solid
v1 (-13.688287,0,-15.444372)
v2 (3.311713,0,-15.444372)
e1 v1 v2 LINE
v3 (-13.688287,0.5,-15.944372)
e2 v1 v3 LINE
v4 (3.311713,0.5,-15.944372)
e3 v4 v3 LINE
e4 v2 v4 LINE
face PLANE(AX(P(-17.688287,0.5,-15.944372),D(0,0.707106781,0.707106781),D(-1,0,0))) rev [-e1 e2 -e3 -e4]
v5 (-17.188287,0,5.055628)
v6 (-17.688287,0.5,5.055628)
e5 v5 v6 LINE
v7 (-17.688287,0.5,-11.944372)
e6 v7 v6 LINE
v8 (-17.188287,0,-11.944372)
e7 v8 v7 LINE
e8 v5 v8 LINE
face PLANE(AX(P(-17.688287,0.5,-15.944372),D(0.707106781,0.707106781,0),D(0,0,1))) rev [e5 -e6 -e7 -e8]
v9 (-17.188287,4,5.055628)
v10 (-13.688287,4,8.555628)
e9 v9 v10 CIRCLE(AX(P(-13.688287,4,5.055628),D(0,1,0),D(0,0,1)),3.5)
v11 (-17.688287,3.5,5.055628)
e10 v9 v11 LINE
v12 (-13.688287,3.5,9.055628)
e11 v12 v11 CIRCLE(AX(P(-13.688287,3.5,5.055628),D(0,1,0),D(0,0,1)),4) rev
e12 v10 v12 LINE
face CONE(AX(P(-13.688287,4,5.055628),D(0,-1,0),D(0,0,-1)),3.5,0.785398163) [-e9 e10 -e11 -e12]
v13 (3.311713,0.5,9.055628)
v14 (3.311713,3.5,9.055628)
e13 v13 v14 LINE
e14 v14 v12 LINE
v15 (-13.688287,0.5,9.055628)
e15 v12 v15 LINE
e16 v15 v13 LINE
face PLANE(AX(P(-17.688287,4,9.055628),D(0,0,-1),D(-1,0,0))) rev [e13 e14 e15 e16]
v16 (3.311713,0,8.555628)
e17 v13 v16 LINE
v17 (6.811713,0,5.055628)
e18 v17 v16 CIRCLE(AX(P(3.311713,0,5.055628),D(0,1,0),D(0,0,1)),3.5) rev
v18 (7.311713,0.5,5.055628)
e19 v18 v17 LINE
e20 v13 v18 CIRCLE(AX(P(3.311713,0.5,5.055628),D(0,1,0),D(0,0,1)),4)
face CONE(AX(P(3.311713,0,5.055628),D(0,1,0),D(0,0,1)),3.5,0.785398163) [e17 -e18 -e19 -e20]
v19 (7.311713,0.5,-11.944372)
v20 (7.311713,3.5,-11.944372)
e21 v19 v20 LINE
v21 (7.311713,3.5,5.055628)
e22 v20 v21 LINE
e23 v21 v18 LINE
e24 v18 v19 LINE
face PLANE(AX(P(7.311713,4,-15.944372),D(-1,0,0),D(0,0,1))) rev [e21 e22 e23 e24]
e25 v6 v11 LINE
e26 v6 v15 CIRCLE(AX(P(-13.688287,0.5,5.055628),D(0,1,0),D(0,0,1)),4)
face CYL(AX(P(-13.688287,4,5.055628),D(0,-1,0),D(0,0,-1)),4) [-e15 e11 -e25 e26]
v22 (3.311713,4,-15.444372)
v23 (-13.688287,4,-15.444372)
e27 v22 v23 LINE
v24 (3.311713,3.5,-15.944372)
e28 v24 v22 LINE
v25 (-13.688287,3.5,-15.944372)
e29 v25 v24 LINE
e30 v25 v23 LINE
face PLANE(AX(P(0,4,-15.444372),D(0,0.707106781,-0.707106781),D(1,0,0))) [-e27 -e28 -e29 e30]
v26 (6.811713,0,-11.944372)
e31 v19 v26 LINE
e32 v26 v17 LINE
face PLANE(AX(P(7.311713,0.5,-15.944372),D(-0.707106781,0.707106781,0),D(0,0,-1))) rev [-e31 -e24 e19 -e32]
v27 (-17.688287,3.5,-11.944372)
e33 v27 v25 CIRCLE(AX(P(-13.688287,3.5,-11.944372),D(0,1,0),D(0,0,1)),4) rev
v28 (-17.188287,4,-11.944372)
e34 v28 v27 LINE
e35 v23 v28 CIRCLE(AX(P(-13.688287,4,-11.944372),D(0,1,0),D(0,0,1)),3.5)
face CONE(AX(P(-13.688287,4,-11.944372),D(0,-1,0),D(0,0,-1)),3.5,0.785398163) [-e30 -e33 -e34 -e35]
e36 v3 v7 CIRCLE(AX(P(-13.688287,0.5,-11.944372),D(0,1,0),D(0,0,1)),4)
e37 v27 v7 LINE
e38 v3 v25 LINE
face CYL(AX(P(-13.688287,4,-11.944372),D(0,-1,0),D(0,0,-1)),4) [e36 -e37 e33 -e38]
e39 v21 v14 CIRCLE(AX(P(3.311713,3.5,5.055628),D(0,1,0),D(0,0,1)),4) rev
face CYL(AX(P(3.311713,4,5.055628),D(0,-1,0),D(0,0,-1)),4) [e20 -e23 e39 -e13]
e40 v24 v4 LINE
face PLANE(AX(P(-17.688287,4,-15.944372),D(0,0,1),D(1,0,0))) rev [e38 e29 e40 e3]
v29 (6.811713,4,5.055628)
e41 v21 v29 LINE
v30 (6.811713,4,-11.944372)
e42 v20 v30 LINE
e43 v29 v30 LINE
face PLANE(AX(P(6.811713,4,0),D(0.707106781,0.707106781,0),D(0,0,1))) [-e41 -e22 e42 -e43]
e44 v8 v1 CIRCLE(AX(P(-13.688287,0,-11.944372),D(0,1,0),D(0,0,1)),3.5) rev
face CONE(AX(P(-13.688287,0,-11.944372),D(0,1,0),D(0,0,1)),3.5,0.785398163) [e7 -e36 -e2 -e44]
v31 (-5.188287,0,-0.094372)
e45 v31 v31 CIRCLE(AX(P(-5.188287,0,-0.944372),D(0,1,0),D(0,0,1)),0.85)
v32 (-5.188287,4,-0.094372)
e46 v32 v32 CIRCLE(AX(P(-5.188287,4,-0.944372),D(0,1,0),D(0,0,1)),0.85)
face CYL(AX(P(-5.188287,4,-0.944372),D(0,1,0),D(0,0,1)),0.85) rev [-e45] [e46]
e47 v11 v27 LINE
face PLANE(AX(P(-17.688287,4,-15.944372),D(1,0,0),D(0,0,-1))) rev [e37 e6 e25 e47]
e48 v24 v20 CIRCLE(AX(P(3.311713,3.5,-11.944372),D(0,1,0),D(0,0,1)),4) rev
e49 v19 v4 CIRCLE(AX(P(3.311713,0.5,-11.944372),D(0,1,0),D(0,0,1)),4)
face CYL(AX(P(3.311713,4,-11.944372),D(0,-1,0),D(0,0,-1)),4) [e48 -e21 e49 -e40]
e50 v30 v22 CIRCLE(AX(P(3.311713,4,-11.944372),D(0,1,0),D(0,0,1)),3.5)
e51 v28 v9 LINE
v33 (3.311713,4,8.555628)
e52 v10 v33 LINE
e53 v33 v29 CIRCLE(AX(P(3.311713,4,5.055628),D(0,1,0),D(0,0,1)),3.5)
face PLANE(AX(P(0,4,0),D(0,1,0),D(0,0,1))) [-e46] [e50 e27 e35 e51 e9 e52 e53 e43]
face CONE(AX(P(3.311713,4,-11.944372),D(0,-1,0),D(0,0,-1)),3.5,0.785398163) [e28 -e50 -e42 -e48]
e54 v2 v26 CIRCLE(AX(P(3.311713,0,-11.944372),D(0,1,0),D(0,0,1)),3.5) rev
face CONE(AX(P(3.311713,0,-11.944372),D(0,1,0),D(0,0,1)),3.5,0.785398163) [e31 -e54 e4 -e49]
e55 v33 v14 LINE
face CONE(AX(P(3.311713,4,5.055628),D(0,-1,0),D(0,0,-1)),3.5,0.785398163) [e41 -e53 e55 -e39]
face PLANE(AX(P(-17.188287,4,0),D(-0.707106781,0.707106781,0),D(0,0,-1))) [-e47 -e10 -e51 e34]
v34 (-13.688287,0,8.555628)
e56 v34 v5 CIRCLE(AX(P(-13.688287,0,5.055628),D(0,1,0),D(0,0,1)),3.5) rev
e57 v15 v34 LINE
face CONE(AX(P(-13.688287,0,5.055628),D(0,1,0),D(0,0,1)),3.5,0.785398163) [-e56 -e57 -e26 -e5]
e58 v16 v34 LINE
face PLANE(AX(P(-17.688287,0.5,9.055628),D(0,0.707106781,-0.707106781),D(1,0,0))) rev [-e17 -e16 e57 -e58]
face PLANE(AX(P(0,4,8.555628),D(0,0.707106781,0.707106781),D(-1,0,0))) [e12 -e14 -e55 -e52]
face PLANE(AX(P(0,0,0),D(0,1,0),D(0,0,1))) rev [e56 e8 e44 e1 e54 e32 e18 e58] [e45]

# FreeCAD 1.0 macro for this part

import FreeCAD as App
import Part
import Sketcher

V = App.Vector


def edges_at(feature, points):
    """Names of the edges that pass closest to the given points."""
    edges = feature.Shape.Edges
    near = lambda p: min(range(len(edges)), key=lambda i: edges[i].distToShape(Part.Vertex(*p))[0])
    return sorted({f"Edge{near(p) + 1}" for p in points})

doc = App.newDocument("Part")
body = doc.addObject("PartDesign::Body", "Body")

# Sketch on XZ plane
sketch1 = body.newObject("Sketcher::SketchObject", "Sketch")
sketch1.AttachmentSupport = (doc.getObject("XZ_Plane"), [""])
sketch1.MapMode = "FlatFace"
sketch1.addGeometry(Part.LineSegment(V(-18, -16, 0), V(-18, 9, 0)), False)
sketch1.addGeometry(Part.LineSegment(V(-18, 9, 0), V(7, 9, 0)), False)
sketch1.addGeometry(Part.LineSegment(V(7, 9, 0), V(7, -16, 0)), False)
sketch1.addGeometry(Part.LineSegment(V(7, -16, 0), V(-18, -16, 0)), False)
sketch1.addConstraint(Sketcher.Constraint("Coincident", 0, 2, 1, 1))
sketch1.addConstraint(Sketcher.Constraint("Coincident", 1, 2, 2, 1))
sketch1.addConstraint(Sketcher.Constraint("Coincident", 2, 2, 3, 1))
sketch1.addConstraint(Sketcher.Constraint("Coincident", 3, 2, 0, 1))
sketch1.addConstraint(Sketcher.Constraint("Vertical", 0))
sketch1.addConstraint(Sketcher.Constraint("Horizontal", 1))
sketch1.addConstraint(Sketcher.Constraint("Vertical", 2))
sketch1.addConstraint(Sketcher.Constraint("Horizontal", 3))
sketch1.addConstraint(Sketcher.Constraint("Equal", 3, 0))
sketch1.addConstraint(Sketcher.Constraint("DistanceX", 1, 1, 1, 2, 25.0))
sketch1.addConstraint(Sketcher.Constraint("DistanceY", -1, 1, 0, 2, 9.055628))
sketch1.addConstraint(Sketcher.Constraint("DistanceX", 0, 2, -1, 1, 17.688287))
pad1 = body.newObject("PartDesign::Pad", "Pad")
pad1.Profile = sketch1
pad1.Length = 4
pad1.Reversed = True
doc.recompute()

fillet = body.newObject("PartDesign::Fillet", "Fillet")
fillet.Base = (pad1, edges_at(pad1, [
    (-17.688, 2, -15.944),
    (7.312, 2, -15.944),
    (7.312, 2, 9.056),
    (-17.688, 2, 9.056),
]))
fillet.Radius = 4

# Sketch on XZ plane
sketch2 = body.newObject("Sketcher::SketchObject", "Sketch001")
sketch2.AttachmentSupport = (doc.getObject("XZ_Plane"), [""])
sketch2.MapMode = "FlatFace"
sketch2.AttachmentOffset = App.Placement(V(0, 0, -4), App.Rotation())
sketch2.addGeometry(Part.Circle(V(-5.2, -0.9, 0), V(0, 0, 1), 0.8), False)
sketch2.addConstraint(Sketcher.Constraint("Diameter", 0, 1.7))
sketch2.addConstraint(Sketcher.Constraint("DistanceY", 0, 3, -1, 1, 0.944372))
sketch2.addConstraint(Sketcher.Constraint("DistanceX", 0, 3, -1, 1, 5.188287))
doc.recompute()
hole = body.newObject("PartDesign::Hole", "Hole")
hole.Profile = sketch2
hole.ThreadType = "None"
hole.Diameter = 1.7
hole.DepthType = "Dimension"
hole.Depth = 8.5
hole.DrillPoint = "Flat"
hole.Reversed = True
doc.recompute()

chamfer = body.newObject("PartDesign::Chamfer", "Chamfer")
chamfer.Base = (hole, edges_at(hole, [
    (-17.688, 0, -3.444),
    (-17.688, 4, -3.444),
    (-5.188, 0, -15.944),
    (7.312, 0, -3.444),
    (-5.188, 0, 9.056),
    (-16.517, 0, 7.884),
    (6.14, 0, 7.884),
    (6.14, 0, -14.773),
    (-16.517, 0, -14.773),
    (-5.188, 4, -15.944),
    (-5.188, 4, 9.056),
    (7.312, 4, -3.444),
    (-16.517, 4, 7.884),
    (6.14, 4, 7.884),
    (6.14, 4, -14.773),
    (-16.517, 4, -14.773),
]))
chamfer.Size = 0.5

doc.recompute()
